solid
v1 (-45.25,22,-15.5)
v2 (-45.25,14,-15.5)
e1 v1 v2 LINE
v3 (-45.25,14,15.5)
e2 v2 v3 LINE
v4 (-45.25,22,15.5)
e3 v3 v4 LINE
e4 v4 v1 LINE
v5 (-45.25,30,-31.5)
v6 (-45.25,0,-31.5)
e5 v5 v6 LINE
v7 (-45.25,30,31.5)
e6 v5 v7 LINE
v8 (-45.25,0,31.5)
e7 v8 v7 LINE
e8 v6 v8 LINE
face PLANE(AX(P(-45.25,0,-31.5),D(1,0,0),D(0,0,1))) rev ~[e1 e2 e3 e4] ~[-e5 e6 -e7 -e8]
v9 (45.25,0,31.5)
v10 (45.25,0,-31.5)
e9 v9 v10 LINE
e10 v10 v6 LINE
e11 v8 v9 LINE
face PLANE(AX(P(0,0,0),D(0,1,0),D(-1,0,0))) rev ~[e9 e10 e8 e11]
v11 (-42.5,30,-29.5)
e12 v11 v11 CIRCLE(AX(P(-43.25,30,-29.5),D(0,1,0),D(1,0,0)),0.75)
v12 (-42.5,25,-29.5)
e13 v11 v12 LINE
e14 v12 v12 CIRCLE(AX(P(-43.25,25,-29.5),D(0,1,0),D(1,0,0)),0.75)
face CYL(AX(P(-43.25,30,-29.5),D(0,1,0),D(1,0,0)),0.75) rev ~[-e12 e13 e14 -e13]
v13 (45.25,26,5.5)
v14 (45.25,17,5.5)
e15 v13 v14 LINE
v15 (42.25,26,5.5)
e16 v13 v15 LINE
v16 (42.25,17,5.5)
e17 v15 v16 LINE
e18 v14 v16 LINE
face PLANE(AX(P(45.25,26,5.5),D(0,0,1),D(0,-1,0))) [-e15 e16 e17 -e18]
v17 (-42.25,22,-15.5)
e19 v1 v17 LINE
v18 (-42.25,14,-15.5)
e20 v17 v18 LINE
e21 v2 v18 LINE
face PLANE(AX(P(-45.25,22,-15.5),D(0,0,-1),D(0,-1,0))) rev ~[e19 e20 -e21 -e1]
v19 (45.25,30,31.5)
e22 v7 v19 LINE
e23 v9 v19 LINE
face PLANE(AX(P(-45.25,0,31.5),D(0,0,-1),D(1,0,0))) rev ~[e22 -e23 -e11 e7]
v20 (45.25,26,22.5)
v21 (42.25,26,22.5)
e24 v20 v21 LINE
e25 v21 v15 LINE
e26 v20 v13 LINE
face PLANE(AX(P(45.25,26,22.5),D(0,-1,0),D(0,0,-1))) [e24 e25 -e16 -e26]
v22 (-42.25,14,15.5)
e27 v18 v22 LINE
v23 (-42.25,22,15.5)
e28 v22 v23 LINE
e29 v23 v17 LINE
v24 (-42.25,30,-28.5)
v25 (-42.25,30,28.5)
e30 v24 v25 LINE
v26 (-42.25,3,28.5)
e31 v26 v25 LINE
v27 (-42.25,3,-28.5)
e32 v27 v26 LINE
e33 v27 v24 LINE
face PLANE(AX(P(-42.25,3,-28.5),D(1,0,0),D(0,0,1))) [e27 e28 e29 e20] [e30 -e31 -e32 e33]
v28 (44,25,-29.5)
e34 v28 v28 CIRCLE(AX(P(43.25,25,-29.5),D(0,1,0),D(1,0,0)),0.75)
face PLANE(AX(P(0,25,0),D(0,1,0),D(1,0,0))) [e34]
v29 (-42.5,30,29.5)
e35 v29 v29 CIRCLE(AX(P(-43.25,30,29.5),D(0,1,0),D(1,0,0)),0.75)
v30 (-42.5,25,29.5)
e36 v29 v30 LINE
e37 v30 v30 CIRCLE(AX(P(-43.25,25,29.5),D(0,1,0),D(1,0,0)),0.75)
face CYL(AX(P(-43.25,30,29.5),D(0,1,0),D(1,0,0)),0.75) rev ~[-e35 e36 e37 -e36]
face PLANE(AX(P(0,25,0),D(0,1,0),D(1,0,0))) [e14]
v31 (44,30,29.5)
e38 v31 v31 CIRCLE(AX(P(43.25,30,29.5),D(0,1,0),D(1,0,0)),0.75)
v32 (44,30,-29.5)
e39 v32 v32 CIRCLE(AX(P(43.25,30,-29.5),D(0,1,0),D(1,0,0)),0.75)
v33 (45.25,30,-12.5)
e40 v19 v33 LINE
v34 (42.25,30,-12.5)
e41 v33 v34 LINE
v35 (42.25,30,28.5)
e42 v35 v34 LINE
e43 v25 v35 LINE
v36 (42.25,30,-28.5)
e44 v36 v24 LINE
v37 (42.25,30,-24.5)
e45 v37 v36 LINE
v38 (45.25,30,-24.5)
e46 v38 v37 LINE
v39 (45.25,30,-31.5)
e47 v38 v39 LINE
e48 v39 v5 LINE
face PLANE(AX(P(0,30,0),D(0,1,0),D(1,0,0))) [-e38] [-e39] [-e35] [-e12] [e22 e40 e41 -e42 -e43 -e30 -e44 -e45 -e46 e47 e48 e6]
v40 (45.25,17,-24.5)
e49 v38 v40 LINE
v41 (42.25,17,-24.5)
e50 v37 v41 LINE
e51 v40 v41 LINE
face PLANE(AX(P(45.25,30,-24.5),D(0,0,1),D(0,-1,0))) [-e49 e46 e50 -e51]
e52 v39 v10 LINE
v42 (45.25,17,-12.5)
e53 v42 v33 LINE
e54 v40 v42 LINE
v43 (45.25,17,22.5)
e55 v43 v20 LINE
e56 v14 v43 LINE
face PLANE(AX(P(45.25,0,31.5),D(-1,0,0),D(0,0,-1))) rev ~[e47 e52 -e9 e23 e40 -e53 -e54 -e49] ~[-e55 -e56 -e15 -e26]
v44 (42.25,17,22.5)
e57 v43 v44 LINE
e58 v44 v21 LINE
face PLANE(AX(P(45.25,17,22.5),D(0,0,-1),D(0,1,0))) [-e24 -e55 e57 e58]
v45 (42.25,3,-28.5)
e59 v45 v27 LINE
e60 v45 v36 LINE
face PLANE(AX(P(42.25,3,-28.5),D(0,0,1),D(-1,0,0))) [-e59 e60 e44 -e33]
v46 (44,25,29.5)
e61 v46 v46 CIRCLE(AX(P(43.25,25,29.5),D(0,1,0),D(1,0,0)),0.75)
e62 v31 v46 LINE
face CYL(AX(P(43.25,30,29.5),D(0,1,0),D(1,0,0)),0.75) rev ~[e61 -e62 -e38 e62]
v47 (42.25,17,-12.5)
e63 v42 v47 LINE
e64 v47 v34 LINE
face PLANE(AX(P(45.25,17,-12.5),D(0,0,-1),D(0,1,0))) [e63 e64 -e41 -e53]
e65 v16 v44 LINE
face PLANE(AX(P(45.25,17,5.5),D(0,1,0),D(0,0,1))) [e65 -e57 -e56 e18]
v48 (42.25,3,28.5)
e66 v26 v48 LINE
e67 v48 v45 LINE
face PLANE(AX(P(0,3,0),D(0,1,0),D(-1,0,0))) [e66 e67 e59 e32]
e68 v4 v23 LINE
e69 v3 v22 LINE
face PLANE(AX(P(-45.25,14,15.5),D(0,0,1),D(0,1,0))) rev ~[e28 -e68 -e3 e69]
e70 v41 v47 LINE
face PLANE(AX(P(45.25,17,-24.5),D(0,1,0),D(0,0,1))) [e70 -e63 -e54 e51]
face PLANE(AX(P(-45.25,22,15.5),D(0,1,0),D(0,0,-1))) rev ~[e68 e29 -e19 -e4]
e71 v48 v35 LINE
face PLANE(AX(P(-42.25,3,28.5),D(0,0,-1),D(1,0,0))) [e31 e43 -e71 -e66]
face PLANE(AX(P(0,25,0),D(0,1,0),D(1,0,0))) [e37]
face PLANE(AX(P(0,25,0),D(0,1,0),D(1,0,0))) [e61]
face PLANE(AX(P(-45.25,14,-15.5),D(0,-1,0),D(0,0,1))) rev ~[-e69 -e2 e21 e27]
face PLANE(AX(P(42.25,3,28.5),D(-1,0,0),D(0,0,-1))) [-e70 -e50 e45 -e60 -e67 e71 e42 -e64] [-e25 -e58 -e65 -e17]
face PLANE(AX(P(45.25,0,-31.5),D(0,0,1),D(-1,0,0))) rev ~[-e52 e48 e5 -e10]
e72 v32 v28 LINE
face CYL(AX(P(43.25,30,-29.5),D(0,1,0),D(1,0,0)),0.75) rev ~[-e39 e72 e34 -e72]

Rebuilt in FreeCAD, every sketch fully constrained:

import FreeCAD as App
import Part
import Sketcher
Q = App.Units.Quantity


def add_polygon(sketch, points):
    """Adds a closed chain of lines whose ends are joined by coincident constraints."""
    first, n = sketch.GeometryCount, len(points)
    for a, b in zip(points, points[1:] + points[:1]):
        sketch.addGeometry(Part.LineSegment(App.Vector(*a, 0), App.Vector(*b, 0)), False)
    for i in range(n):
        sketch.addConstraint(Sketcher.Constraint("Coincident", first + i, 2, first + (i + 1) % n, 1))

doc = App.newDocument("Part")
body = doc.addObject("PartDesign::Body", "Body")

# Sketch on XZ plane
sketch1 = body.newObject("Sketcher::SketchObject", "Sketch")
sketch1.AttachmentSupport = (doc.getObject("XZ_Plane"), [""])
sketch1.MapMode = "FlatFace"
add_polygon(sketch1, [(-45, -32), (-45, 32), (45, 32), (45, -32)])  # lines 0-3
sketch1.addConstraint(Sketcher.Constraint("Vertical", 0))
sketch1.addConstraint(Sketcher.Constraint("Horizontal", 1))
sketch1.addConstraint(Sketcher.Constraint("Vertical", 2))
sketch1.addConstraint(Sketcher.Constraint("Horizontal", 3))
sketch1.addConstraint(Sketcher.Constraint("Symmetric", 0, 2, 2, 2, -1, 1))
sketch1.addConstraint(Sketcher.Constraint("DistanceY", 0, 1, 0, 2, Q("63 mm")))
sketch1.addConstraint(Sketcher.Constraint("DistanceX", 1, 1, 1, 2, Q("90.5 mm")))
pad1 = body.newObject("PartDesign::Pad", "Pad")
pad1.Profile = sketch1
pad1.Length = 3
pad1.Reversed = True

# Sketch on XZ plane
sketch2 = body.newObject("Sketcher::SketchObject", "Sketch001")
sketch2.AttachmentSupport = (doc.getObject("XZ_Plane"), [""])
sketch2.MapMode = "FlatFace"
sketch2.AttachmentOffset = App.Placement(App.Vector(0, 0, -3), App.Rotation())
add_polygon(sketch2, [(-45, 32), (45, 32), (45, -32), (-45, -32)])  # lines 0-3
add_polygon(sketch2, [(42, 28), (-42, 28), (-42, -28), (42, -28)])  # lines 4-7
sketch2.addConstraint(Sketcher.Constraint("Horizontal", 0))
sketch2.addConstraint(Sketcher.Constraint("Vertical", 1))
sketch2.addConstraint(Sketcher.Constraint("Horizontal", 2))
sketch2.addConstraint(Sketcher.Constraint("Vertical", 3))
sketch2.addConstraint(Sketcher.Constraint("Horizontal", 4))
sketch2.addConstraint(Sketcher.Constraint("Vertical", 5))
sketch2.addConstraint(Sketcher.Constraint("Horizontal", 6))
sketch2.addConstraint(Sketcher.Constraint("Vertical", 7))
sketch2.addConstraint(Sketcher.Constraint("Symmetric", 0, 2, 2, 2, -1, 1))
sketch2.addConstraint(Sketcher.Constraint("Symmetric", 4, 2, 6, 2, -1, 1))
sketch2.addConstraint(Sketcher.Constraint("DistanceY", 5, 2, 5, 1, Q("57 mm")))
sketch2.addConstraint(Sketcher.Constraint("DistanceX", 4, 2, 4, 1, Q("84.5 mm")))
sketch2.addConstraint(Sketcher.Constraint("DistanceY", 1, 2, 1, 1, Q("63 mm")))
sketch2.addConstraint(Sketcher.Constraint("DistanceX", 0, 1, 0, 2, Q("90.5 mm")))
pad2 = body.newObject("PartDesign::Pad", "Pad001")
pad2.Profile = sketch2
pad2.Length = 27
pad2.Reversed = True

# Sketch on XZ plane
sketch3 = body.newObject("Sketcher::SketchObject", "Sketch002")
sketch3.AttachmentSupport = (doc.getObject("XZ_Plane"), [""])
sketch3.MapMode = "FlatFace"
sketch3.AttachmentOffset = App.Placement(App.Vector(0, 0, -30), App.Rotation())
sketch3.addGeometry(Part.Circle(App.Vector(-43.2, -29.5, 0), App.Vector(0, 0, 1), 0.8), False)
sketch3.addGeometry(Part.Circle(App.Vector(-43.2, 29.5, 0), App.Vector(0, 0, 1), 0.8), False)
sketch3.addGeometry(Part.Circle(App.Vector(43.2, 29.5, 0), App.Vector(0, 0, 1), 0.8), False)
sketch3.addGeometry(Part.Circle(App.Vector(43.2, -29.5, 0), App.Vector(0, 0, 1), 0.8), False)
sketch3.addConstraint(Sketcher.Constraint("Equal", 0, 1))
sketch3.addConstraint(Sketcher.Constraint("Equal", 1, 2))
sketch3.addConstraint(Sketcher.Constraint("Equal", 2, 3))
sketch3.addConstraint(Sketcher.Constraint("Symmetric", 0, 3, 2, 3, -1, 1))
sketch3.addConstraint(Sketcher.Constraint("Symmetric", 1, 3, 3, 3, -1, 1))
sketch3.addConstraint(Sketcher.Constraint("Symmetric", 1, 3, 2, 3, -2))
sketch3.addConstraint(Sketcher.Constraint("Diameter", 0, Q("1.5 mm")))
sketch3.addConstraint(Sketcher.Constraint("DistanceY", 0, 3, 1, 3, Q("59 mm")))
sketch3.addConstraint(Sketcher.Constraint("DistanceX", 1, 3, 2, 3, Q("86.5 mm")))
pocket1 = body.newObject("PartDesign::Pocket", "Pocket")
pocket1.Profile = sketch3
pocket1.Length = 5
pocket1.Reversed = True

# Sketch on YZ plane
sketch4 = body.newObject("Sketcher::SketchObject", "Sketch003")
sketch4.AttachmentSupport = (doc.getObject("YZ_Plane"), [""])
sketch4.MapMode = "FlatFace"
sketch4.AttachmentOffset = App.Placement(App.Vector(0, 0, -45.25), App.Rotation())
add_polygon(sketch4, [(22, -16), (14, -16), (14, 16), (22, 16)])  # lines 0-3
sketch4.addConstraint(Sketcher.Constraint("Horizontal", 0))
sketch4.addConstraint(Sketcher.Constraint("Vertical", 1))
sketch4.addConstraint(Sketcher.Constraint("Horizontal", 2))
sketch4.addConstraint(Sketcher.Constraint("Vertical", 3))
sketch4.addConstraint(Sketcher.Constraint("DistanceX", 0, 2, 0, 1, Q("8 mm")))
sketch4.addConstraint(Sketcher.Constraint("DistanceY", 1, 1, 1, 2, Q("31 mm")))
sketch4.addConstraint(Sketcher.Constraint("DistanceX", -1, 1, 0, 2, Q("14 mm")))
sketch4.addConstraint(Sketcher.Constraint("DistanceY", 0, 2, -1, 1, Q("15.5 mm")))
pocket2 = body.newObject("PartDesign::Pocket", "Pocket001")
pocket2.Profile = sketch4
pocket2.Length = 3
pocket2.Reversed = True

# Sketch on YZ plane
sketch5 = body.newObject("Sketcher::SketchObject", "Sketch004")
sketch5.AttachmentSupport = (doc.getObject("YZ_Plane"), [""])
sketch5.MapMode = "FlatFace"
sketch5.AttachmentOffset = App.Placement(App.Vector(0, 0, 45.25), App.Rotation())
add_polygon(sketch5, [(30, -24), (30, -12), (17, -12), (17, -24)])  # lines 0-3
add_polygon(sketch5, [(26, 6), (26, 22), (17, 22), (17, 6)])  # lines 4-7
sketch5.addConstraint(Sketcher.Constraint("Vertical", 0))
sketch5.addConstraint(Sketcher.Constraint("Horizontal", 1))
sketch5.addConstraint(Sketcher.Constraint("Vertical", 2))
sketch5.addConstraint(Sketcher.Constraint("Horizontal", 3))
sketch5.addConstraint(Sketcher.Constraint("Vertical", 4))
sketch5.addConstraint(Sketcher.Constraint("Horizontal", 5))
sketch5.addConstraint(Sketcher.Constraint("Vertical", 6))
sketch5.addConstraint(Sketcher.Constraint("Horizontal", 7))
sketch5.addConstraint(Sketcher.Constraint("Vertical", 2, 2, 5, 2))
sketch5.addConstraint(Sketcher.Constraint("DistanceX", 1, 2, 1, 1, Q("13 mm")))
sketch5.addConstraint(Sketcher.Constraint("DistanceX", 5, 2, 5, 1, Q("9 mm")))
sketch5.addConstraint(Sketcher.Constraint("DistanceY", 0, 1, 0, 2, Q("12 mm")))
sketch5.addConstraint(Sketcher.Constraint("DistanceY", 4, 1, 4, 2, Q("17 mm")))
sketch5.addConstraint(Sketcher.Constraint("DistanceX", -1, 1, 1, 2, Q("17 mm")))
sketch5.addConstraint(Sketcher.Constraint("DistanceY", 0, 2, 4, 2, Q("35 mm")))
sketch5.addConstraint(Sketcher.Constraint("DistanceY", 0, 2, -1, 1, Q("12.5 mm")))
pocket3 = body.newObject("PartDesign::Pocket", "Pocket002")
pocket3.Profile = sketch5
pocket3.Length = 3

doc.recompute()
